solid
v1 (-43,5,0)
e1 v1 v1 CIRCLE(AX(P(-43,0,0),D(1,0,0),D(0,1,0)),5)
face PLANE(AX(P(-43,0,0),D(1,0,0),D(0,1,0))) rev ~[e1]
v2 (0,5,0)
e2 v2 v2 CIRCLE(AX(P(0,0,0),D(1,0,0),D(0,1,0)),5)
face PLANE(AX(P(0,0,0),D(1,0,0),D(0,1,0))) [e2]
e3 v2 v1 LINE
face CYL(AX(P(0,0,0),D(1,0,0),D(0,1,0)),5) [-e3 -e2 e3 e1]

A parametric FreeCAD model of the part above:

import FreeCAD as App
import Part
import Sketcher
from FreeCAD import Vector
Q = App.Units.Quantity

doc = App.newDocument("Part")
body = doc.addObject("PartDesign::Body", "Body")

# Sketch on YZ plane
sketch1 = body.newObject("Sketcher::SketchObject", "Sketch")
sketch1.AttachmentSupport = (doc.getObject("YZ_Plane"), [""])
sketch1.MapMode = "FlatFace"
sketch1.addGeometry(Part.Circle(Vector(0, 0, 0), Vector(0, 0, 1), 5), False)
sketch1.addConstraint([
    Sketcher.Constraint("Coincident", 0, 3, -1, 1),
    Sketcher.Constraint("Diameter", 0, Q("10 mm")),
])
pad1 = body.newObject("PartDesign::Pad", "Pad")
pad1.Profile = sketch1
pad1.Length = 43
pad1.Reversed = True

doc.recompute()
